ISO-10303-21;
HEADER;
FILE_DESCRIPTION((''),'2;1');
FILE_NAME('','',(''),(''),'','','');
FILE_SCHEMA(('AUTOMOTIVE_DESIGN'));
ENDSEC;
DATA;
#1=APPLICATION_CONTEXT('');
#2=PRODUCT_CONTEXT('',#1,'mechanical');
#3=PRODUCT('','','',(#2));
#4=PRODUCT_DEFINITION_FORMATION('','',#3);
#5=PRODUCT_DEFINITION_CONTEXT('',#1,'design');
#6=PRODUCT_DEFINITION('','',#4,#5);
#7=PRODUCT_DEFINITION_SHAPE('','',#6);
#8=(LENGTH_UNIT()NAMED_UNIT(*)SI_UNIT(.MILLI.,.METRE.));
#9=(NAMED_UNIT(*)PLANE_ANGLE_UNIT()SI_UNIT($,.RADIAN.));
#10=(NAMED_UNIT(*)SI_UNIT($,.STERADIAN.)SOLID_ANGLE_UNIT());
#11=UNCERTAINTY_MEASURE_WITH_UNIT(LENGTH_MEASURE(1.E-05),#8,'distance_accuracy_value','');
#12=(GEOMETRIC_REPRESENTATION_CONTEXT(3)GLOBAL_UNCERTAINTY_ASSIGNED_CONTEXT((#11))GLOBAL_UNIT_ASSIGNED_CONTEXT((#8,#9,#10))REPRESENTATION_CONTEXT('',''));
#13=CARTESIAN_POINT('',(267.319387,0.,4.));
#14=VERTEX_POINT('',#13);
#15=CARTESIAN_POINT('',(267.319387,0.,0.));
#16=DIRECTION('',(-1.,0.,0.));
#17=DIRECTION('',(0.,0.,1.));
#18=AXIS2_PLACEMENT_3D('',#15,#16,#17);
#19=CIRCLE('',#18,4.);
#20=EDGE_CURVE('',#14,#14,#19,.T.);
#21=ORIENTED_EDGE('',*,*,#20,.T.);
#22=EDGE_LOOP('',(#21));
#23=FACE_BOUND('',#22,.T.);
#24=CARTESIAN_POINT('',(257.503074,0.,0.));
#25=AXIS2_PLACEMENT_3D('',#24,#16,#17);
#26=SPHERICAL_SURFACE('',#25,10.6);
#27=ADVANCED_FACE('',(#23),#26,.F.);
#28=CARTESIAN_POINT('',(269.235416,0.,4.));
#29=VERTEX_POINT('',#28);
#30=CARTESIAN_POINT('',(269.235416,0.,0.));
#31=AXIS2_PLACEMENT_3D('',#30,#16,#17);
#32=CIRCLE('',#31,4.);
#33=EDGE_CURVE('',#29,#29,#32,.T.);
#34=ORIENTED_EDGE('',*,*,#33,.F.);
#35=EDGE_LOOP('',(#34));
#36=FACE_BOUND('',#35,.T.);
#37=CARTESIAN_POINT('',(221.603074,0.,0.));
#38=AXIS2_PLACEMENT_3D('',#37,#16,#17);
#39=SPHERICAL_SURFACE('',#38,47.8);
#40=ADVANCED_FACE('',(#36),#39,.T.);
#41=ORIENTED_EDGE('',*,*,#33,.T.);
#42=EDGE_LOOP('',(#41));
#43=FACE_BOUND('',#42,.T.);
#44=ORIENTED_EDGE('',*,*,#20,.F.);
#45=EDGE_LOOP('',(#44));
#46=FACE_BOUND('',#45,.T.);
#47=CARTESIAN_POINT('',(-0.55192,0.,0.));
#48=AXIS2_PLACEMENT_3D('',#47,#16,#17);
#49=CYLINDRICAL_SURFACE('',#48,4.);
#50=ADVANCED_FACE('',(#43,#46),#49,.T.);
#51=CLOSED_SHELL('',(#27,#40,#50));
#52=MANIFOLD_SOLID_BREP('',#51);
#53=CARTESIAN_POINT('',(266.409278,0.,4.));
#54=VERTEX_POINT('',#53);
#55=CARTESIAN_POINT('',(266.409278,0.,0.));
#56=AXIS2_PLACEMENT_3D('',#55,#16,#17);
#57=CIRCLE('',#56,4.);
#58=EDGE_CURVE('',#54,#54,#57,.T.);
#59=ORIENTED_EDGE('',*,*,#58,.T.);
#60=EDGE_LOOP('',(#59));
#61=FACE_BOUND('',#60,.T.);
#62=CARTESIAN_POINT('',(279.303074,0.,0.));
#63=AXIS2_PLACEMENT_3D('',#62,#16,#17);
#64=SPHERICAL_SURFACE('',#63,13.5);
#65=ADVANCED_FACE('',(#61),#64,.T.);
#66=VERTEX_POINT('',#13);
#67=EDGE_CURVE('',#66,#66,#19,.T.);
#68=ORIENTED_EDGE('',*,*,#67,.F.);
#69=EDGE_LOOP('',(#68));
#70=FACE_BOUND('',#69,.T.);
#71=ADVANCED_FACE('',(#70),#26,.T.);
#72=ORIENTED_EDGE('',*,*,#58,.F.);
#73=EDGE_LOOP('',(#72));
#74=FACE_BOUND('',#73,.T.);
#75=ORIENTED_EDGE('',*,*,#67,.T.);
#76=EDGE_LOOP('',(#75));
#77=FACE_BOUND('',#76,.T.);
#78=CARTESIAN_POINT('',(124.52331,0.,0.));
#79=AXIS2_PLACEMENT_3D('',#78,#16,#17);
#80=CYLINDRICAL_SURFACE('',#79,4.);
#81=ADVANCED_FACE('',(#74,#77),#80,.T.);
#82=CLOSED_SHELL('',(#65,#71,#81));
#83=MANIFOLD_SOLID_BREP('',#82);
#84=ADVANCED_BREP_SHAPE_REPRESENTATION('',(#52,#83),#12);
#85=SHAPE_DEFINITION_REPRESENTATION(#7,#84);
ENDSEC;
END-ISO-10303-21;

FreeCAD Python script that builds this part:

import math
import FreeCAD as App
import Part
import Sketcher

V = App.Vector

doc = App.newDocument("Part")
body = doc.addObject("PartDesign::Body", "Body")

# Sketch on XZ plane
sketch1 = body.newObject("Sketcher::SketchObject", "Sketch")
sketch1.AttachmentSupport = (doc.getObject("XZ_Plane"), [""])
sketch1.MapMode = "FlatFace"
sketch1.addGeometry(Part.ArcOfCircle(Part.Circle(V(279.303074, 0, 0), V(0, 0, 1), 13.5), math.radians(180), math.radians(197.235285)), False)
sketch1.addGeometry(Part.LineSegment(V(265.803074, 0, 0), V(268.103074, 0, 0)), False)
sketch1.addGeometry(Part.ArcOfCircle(Part.Circle(V(257.503074, 0, 0), V(0, 0, 1), 10.6), math.radians(-22.170157), math.radians(0)), False)
sketch1.addGeometry(Part.LineSegment(V(267.319387, -4, 0), V(266.409278, -4, 0)), False)
sketch1.addConstraint(Sketcher.Constraint("Coincident", 0, 1, 1, 1))
sketch1.addConstraint(Sketcher.Constraint("Coincident", 1, 2, 2, 2))
sketch1.addConstraint(Sketcher.Constraint("Coincident", 2, 1, 3, 1))
sketch1.addConstraint(Sketcher.Constraint("Coincident", 3, 2, 0, 2))
sketch1.addConstraint(Sketcher.Constraint("Horizontal", 1))
sketch1.addConstraint(Sketcher.Constraint("Horizontal", 3))
sketch1.addConstraint(Sketcher.Constraint("PointOnObject", 0, 3, -1))
sketch1.addConstraint(Sketcher.Constraint("PointOnObject", 2, 3, -1))
sketch1.addConstraint(Sketcher.Constraint("PointOnObject", 0, 1, -1))
sketch1.addConstraint(Sketcher.Constraint("Radius", 0, 13.5))
sketch1.addConstraint(Sketcher.Constraint("Radius", 2, 10.6))
sketch1.addConstraint(Sketcher.Constraint("DistanceX", 1, 1, 1, 2, 2.3))
sketch1.addConstraint(Sketcher.Constraint("DistanceY", 2, 1, -1, 1, 4.0))
sketch1.addConstraint(Sketcher.Constraint("DistanceX", -1, 1, 0, 3, 279.303074))
revolution = body.newObject("PartDesign::Revolution", "Revolution")
revolution.Profile = sketch1
revolution.ReferenceAxis = (sketch1, ["H_Axis"])
revolution.Angle = 360
body2 = doc.addObject("PartDesign::Body", "Body001")

# Sketch on XZ plane
sketch2 = body2.newObject("Sketcher::SketchObject", "Sketch001")
sketch2.AttachmentSupport = (doc.getObject("XZ_Plane001"), [""])
sketch2.MapMode = "FlatFace"
sketch2.addGeometry(Part.LineSegment(V(269.235416, -4, 0), V(267.319387, -4, 0)), False)
sketch2.addGeometry(Part.ArcOfCircle(Part.Circle(V(257.503074, 0, 0), V(0, 0, 1), 10.6), math.radians(-22.170157), math.radians(0)), False)
sketch2.addGeometry(Part.LineSegment(V(268.103074, 0, 0), V(269.403074, 0, 0)), False)
sketch2.addGeometry(Part.ArcOfCircle(Part.Circle(V(221.603074, 0, 0), V(0, 0, 1), 47.800001), math.radians(-4.800239), math.radians(0)), False)
sketch2.addConstraint(Sketcher.Constraint("Coincident", 0, 2, 1, 1))
sketch2.addConstraint(Sketcher.Constraint("Coincident", 1, 2, 2, 1))
sketch2.addConstraint(Sketcher.Constraint("Coincident", 2, 2, 3, 2))
sketch2.addConstraint(Sketcher.Constraint("Coincident", 3, 1, 0, 1))
sketch2.addConstraint(Sketcher.Constraint("Horizontal", 0))
sketch2.addConstraint(Sketcher.Constraint("Horizontal", 2))
sketch2.addConstraint(Sketcher.Constraint("PointOnObject", 1, 3, -1))
sketch2.addConstraint(Sketcher.Constraint("PointOnObject", 3, 3, -1))
sketch2.addConstraint(Sketcher.Constraint("PointOnObject", 1, 2, -1))
sketch2.addConstraint(Sketcher.Constraint("Radius", 1, 10.6))
sketch2.addConstraint(Sketcher.Constraint("Radius", 3, 47.800001))
sketch2.addConstraint(Sketcher.Constraint("DistanceX", 2, 1, 2, 2, 1.3))
sketch2.addConstraint(Sketcher.Constraint("DistanceY", 0, 2, -1, 1, 4.0))
sketch2.addConstraint(Sketcher.Constraint("DistanceX", -1, 1, 1, 3, 257.503074))
revolution2 = body2.newObject("PartDesign::Revolution", "Revolution001")
revolution2.Profile = sketch2
revolution2.ReferenceAxis = (sketch2, ["H_Axis"])
revolution2.Angle = 360

doc.recompute()
